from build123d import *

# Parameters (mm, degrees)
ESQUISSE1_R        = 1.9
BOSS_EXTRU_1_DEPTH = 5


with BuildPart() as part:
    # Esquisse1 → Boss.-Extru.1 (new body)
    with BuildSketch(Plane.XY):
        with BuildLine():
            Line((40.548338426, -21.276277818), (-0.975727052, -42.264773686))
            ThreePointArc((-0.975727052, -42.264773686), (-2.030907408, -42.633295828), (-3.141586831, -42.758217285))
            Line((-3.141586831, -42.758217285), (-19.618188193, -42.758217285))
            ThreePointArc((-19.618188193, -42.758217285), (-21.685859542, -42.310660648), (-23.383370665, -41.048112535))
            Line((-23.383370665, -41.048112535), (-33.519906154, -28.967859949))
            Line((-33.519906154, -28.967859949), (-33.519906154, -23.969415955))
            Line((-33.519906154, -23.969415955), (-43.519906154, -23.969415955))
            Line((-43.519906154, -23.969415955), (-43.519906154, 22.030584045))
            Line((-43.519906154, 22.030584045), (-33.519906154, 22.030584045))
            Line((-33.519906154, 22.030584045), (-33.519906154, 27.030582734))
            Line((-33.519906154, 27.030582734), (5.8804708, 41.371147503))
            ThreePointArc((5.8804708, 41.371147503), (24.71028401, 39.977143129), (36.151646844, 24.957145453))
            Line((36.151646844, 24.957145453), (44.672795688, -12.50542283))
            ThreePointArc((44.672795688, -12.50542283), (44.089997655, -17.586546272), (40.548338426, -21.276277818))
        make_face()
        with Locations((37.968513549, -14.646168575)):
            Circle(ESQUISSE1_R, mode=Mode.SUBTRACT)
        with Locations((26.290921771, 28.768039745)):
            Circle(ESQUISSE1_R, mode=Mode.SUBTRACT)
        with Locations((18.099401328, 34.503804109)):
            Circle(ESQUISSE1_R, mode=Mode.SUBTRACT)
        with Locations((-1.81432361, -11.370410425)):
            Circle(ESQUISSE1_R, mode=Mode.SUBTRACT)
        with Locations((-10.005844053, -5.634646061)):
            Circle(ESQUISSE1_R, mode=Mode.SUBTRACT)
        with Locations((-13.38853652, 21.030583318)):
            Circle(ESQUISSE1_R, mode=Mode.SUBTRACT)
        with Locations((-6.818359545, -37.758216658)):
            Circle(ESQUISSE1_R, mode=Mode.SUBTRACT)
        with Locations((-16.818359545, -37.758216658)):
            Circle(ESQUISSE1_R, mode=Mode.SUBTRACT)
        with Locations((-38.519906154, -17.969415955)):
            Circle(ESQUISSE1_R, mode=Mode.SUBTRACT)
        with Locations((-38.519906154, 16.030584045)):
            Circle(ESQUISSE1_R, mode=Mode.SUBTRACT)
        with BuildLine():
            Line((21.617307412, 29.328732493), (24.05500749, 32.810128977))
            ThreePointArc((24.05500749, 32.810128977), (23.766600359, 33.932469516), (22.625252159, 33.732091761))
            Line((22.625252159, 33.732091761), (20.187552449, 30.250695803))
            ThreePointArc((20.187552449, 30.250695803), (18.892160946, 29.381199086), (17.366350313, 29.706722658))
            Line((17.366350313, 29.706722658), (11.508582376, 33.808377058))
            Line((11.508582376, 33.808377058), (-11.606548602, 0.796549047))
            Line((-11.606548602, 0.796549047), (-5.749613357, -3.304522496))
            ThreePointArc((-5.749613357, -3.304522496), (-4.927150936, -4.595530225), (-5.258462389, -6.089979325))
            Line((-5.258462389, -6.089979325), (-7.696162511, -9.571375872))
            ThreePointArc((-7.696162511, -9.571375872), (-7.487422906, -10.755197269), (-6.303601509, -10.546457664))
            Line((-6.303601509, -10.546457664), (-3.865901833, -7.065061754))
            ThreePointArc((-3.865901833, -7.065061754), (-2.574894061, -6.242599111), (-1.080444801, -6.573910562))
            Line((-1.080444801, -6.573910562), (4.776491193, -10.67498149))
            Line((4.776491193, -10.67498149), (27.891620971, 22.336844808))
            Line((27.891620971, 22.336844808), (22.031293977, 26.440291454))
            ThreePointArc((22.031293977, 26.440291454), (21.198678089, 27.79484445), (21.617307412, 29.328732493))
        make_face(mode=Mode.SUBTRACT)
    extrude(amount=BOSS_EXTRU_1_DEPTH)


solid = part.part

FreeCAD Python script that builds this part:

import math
import FreeCAD as App
import Part
import Sketcher

V = App.Vector
Q = App.Units.Quantity

doc = App.newDocument("Part")
params = doc.addObject("Spreadsheet::Sheet", "Params")
for row, (alias, value) in enumerate([
    ("sketch1_radius", "8 mm"),
    ("sketch1_radius2", "23 mm"),
    ("sketch1_radius3", "5 mm"),
    ("sketch1_radius4", "5 mm"),
    ("sketch1_radius5", "2 mm"),
    ("pad1_length", "5 mm"),
], start=1):
    params.set(f"A{row}", alias)
    params.set(f"B{row}", "=" + value)
    params.setAlias(f"B{row}", alias)

body = doc.addObject("PartDesign::Body", "Body")

sketch1 = body.newObject("Sketcher::SketchObject", "Sketch")
sketch1.AttachmentSupport = (doc.getObject("XY_Plane"), [""])
sketch1.MapMode = "FlatFace"
sketch1.addGeometry([
    Part.LineSegment(V(-0.975727, -42.264774, 0), V(40.548338, -21.276278, 0)),
    Part.ArcOfCircle(Part.Circle(V(36.850493, -14.1822, 0), V(0, 0, 1), 8), math.radians(-62.468858), math.radians(12.098745)),
    Part.LineSegment(V(44.672796, -12.505423, 0), V(36.151647, 24.957145, 0)),
    Part.ArcOfCircle(Part.Circle(V(13.746934, 19.758217, 0), V(0, 0, 1), 23), math.radians(13.064062), math.radians(110)),
    Part.LineSegment(V(5.880471, 41.371148, 0), V(-33.519906, 27.030583, 0)),
    Part.LineSegment(V(-33.519906, 27.030583, 0), V(-33.519906, 22.030584, 0)),
    Part.LineSegment(V(-33.519906, 22.030584, 0), V(-43.519906, 22.030584, 0)),
    Part.LineSegment(V(-43.519906, 22.030584, 0), V(-43.519906, -23.969416, 0)),
    Part.LineSegment(V(-43.519906, -23.969416, 0), V(-33.519906, -23.969416, 0)),
    Part.LineSegment(V(-33.519906, -23.969416, 0), V(-33.519906, -28.96786, 0)),
    Part.LineSegment(V(-33.519906, -28.96786, 0), V(-23.383371, -41.048113, 0)),
    Part.ArcOfCircle(Part.Circle(V(-19.618189, -37.758217, 0), V(0, 0, 1), 5), math.radians(-138.854075), math.radians(-89.999985)),
    Part.LineSegment(V(-19.618188, -42.758217, 0), V(-3.141587, -42.758217, 0)),
    Part.ArcOfCircle(Part.Circle(V(-3.141587, -37.758217, 0), V(0, 0, 1), 5), math.radians(-89.999998), math.radians(-64.330968)),
    Part.Circle(V(37.968514, -14.646169, 0), V(0, 0, 1), 1.9),
    Part.Circle(V(-6.81836, -37.758217, 0), V(0, 0, 1), 1.9),
    Part.Circle(V(-16.81836, -37.758217, 0), V(0, 0, 1), 1.9),
    Part.Circle(V(-1.814324, -11.37041, 0), V(0, 0, 1), 1.9),
    Part.Circle(V(-10.005844, -5.634646, 0), V(0, 0, 1), 1.9),
    Part.Circle(V(-38.519906, -17.969416, 0), V(0, 0, 1), 1.9),
    Part.ArcOfCircle(Part.Circle(V(23.178447, 28.078595, 0), V(0, 0, 1), 2), math.radians(141.312781), math.radians(234.99999)),
    Part.LineSegment(V(22.031294, 26.440291, 0), V(27.891621, 22.336845, 0)),
    Part.LineSegment(V(27.891621, 22.336845, 0), V(4.776491, -10.674981, 0)),
    Part.LineSegment(V(4.776491, -10.674981, 0), V(-1.080445, -6.573911, 0)),
    Part.ArcOfCircle(Part.Circle(V(-2.227598, -8.212215, 0), V(0, 0, 1), 2), math.radians(54.999999), math.radians(145)),
    Part.LineSegment(V(-3.865902, -7.065062, 0), V(-6.303602, -10.546458, 0)),
    Part.ArcOfCircle(Part.Circle(V(-6.999882, -10.058917, 0), V(0, 0, 1), 0.850002), math.radians(144.999998), math.radians(324.999998)),
    Part.LineSegment(V(-7.696163, -9.571376, 0), V(-5.258462, -6.089979, 0)),
    Part.ArcOfCircle(Part.Circle(V(-6.896766, -4.942826, 0), V(0, 0, 1), 2), math.radians(-35), math.radians(54.999991)),
    Part.LineSegment(V(-5.749613, -3.304522, 0), V(-11.606549, 0.796549, 0)),
    Part.LineSegment(V(-11.606549, 0.796549, 0), V(11.508582, 33.808377, 0)),
    Part.LineSegment(V(11.508582, 33.808377, 0), V(17.36635, 29.706723, 0)),
    Part.ArcOfCircle(Part.Circle(V(18.513503, 31.345027, 0), V(0, 0, 1), 2), math.radians(-125.000007), math.radians(-33.172764)),
    Part.LineSegment(V(20.187552, 30.250696, 0), V(22.625252, 33.732092, 0)),
    Part.ArcOfCircle(Part.Circle(V(23.304223, 33.215426, 0), V(0, 0, 1), 0.853196), math.radians(-28.361579), math.radians(142.730532)),
    Part.LineSegment(V(24.055007, 32.810129, 0), V(21.617307, 29.328732, 0)),
    Part.Circle(V(26.290922, 28.76804, 0), V(0, 0, 1), 1.9),
    Part.Circle(V(18.099401, 34.503804, 0), V(0, 0, 1), 1.9),
    Part.Circle(V(-38.519906, 16.030584, 0), V(0, 0, 1), 1.9),
    Part.Circle(V(-13.388537, 21.030583, 0), V(0, 0, 1), 1.9),
], False)
sketch1.addConstraint([
    Sketcher.Constraint("Coincident", 0, 2, 1, 1),
    Sketcher.Constraint("Coincident", 1, 2, 2, 1),
    Sketcher.Constraint("Coincident", 2, 2, 3, 1),
    Sketcher.Constraint("Coincident", 3, 2, 4, 1),
    Sketcher.Constraint("Coincident", 4, 2, 5, 1),
    Sketcher.Constraint("Coincident", 5, 2, 6, 1),
    Sketcher.Constraint("Coincident", 6, 2, 7, 1),
    Sketcher.Constraint("Coincident", 7, 2, 8, 1),
    Sketcher.Constraint("Coincident", 8, 2, 9, 1),
    Sketcher.Constraint("Coincident", 9, 2, 10, 1),
    Sketcher.Constraint("Coincident", 10, 2, 11, 1),
    Sketcher.Constraint("Coincident", 11, 2, 12, 1),
    Sketcher.Constraint("Coincident", 12, 2, 13, 1),
    Sketcher.Constraint("Coincident", 13, 2, 0, 1),
    Sketcher.Constraint("Coincident", 20, 2, 21, 1),
    Sketcher.Constraint("Coincident", 21, 2, 22, 1),
    Sketcher.Constraint("Coincident", 22, 2, 23, 1),
    Sketcher.Constraint("Coincident", 23, 2, 24, 1),
    Sketcher.Constraint("Coincident", 24, 2, 25, 1),
    Sketcher.Constraint("Coincident", 25, 2, 26, 2),
    Sketcher.Constraint("Coincident", 26, 1, 27, 1),
    Sketcher.Constraint("Coincident", 27, 2, 28, 1),
    Sketcher.Constraint("Coincident", 28, 2, 29, 1),
    Sketcher.Constraint("Coincident", 29, 2, 30, 1),
    Sketcher.Constraint("Coincident", 30, 2, 31, 1),
    Sketcher.Constraint("Coincident", 31, 2, 32, 1),
    Sketcher.Constraint("Coincident", 32, 2, 33, 1),
    Sketcher.Constraint("Coincident", 33, 2, 34, 2),
    Sketcher.Constraint("Coincident", 34, 1, 35, 1),
    Sketcher.Constraint("Coincident", 35, 2, 20, 1),
    Sketcher.Constraint("Vertical", 5),
    Sketcher.Constraint("Horizontal", 6),
    Sketcher.Constraint("Vertical", 7),
    Sketcher.Constraint("Horizontal", 8),
    Sketcher.Constraint("Vertical", 9),
    Sketcher.Constraint("Horizontal", 12),
    Sketcher.Constraint("Radius", 1, Q("8 mm")),
    Sketcher.Constraint("Radius", 3, Q("23 mm")),
    Sketcher.Constraint("Radius", 11, Q("5 mm")),
    Sketcher.Constraint("Radius", 13, Q("5 mm")),
    Sketcher.Constraint("Radius", 20, Q("2 mm")),
    Sketcher.Constraint("Radius", 24, Q("2 mm")),
    Sketcher.Constraint("Radius", 28, Q("2 mm")),
    Sketcher.Constraint("Radius", 32, Q("2 mm")),
    Sketcher.Constraint("Diameter", 14, Q("3.8 mm")),
    Sketcher.Constraint("Diameter", 15, Q("3.8 mm")),
    Sketcher.Constraint("Diameter", 16, Q("3.8 mm")),
    Sketcher.Constraint("Diameter", 17, Q("3.8 mm")),
    Sketcher.Constraint("Diameter", 18, Q("3.8 mm")),
    Sketcher.Constraint("Diameter", 19, Q("3.8 mm")),
    Sketcher.Constraint("Diameter", 36, Q("3.8 mm")),
    Sketcher.Constraint("Diameter", 37, Q("3.8 mm")),
    Sketcher.Constraint("Diameter", 38, Q("3.8 mm")),
    Sketcher.Constraint("Diameter", 39, Q("3.8 mm")),
    Sketcher.Constraint("DistanceX", 6, 2, 6, 1, Q("10 mm")),
    Sketcher.Constraint("DistanceX", 8, 1, 8, 2, Q("10 mm")),
    Sketcher.Constraint("DistanceY", 5, 2, 5, 1, Q("4.999999 mm")),
    Sketcher.Constraint("DistanceY", 7, 2, 7, 1, Q("46 mm")),
    Sketcher.Constraint("Radius", 26, Q("0.850002 mm")),
    Sketcher.Constraint("DistanceX", 16, 3, 15, 3, Q("10 mm")),
    Sketcher.Constraint("DistanceY", 19, 3, 38, 3, Q("34 mm")),
    Sketcher.Constraint("DistanceY", 38, 3, 39, 3, Q("4.999999 mm")),
    Sketcher.Constraint("DistanceX", 38, 3, 4, 2, Q("5 mm")),
    Sketcher.Constraint("DistanceY", 38, 3, 4, 2, Q("10.999999 mm")),
    Sketcher.Constraint("DistanceX", 6, 2, 19, 3, Q("5 mm")),
    Sketcher.Constraint("DistanceY", 11, 2, 16, 3, Q("5.000001 mm")),
    Sketcher.Constraint("DistanceY", 11, 2, 15, 3, Q("5.000001 mm")),
    Sketcher.Constraint("Distance", 22, Q("40.299999 mm")),
    Sketcher.Constraint("Distance", 30, Q("40.300001 mm")),
    Sketcher.Constraint("Distance", 23, Q("7.149999 mm")),
    Sketcher.Constraint("Distance", 25, Q("4.25 mm")),
    Sketcher.Constraint("Distance", 27, Q("4.25 mm")),
    Sketcher.Constraint("Distance", 29, Q("7.149998 mm")),
    Sketcher.Constraint("Distance", 33, Q("4.25 mm")),
    Sketcher.Constraint("Distance", 35, Q("4.25 mm")),
    Sketcher.Constraint("DistanceX", 12, 1, 12, 2, Q("16.476601 mm")),
    Sketcher.Constraint("Radius", 34, Q("0.853196 mm")),
    Sketcher.Constraint("DistanceY", 1, 3, -1, 1, Q("14.1822 mm")),
    Sketcher.Constraint("DistanceX", -1, 1, 37, 3, Q("18.099401 mm")),
    Sketcher.Constraint("DistanceX", 24, 2, -1, 1, Q("3.865902 mm")),
    Sketcher.Constraint("DistanceX", 25, 2, -1, 1, Q("6.303602 mm")),
    Sketcher.Constraint("DistanceX", 13, 3, 14, 3, Q("41.110101 mm")),
    Sketcher.Constraint("DistanceY", 11, 3, 19, 3, Q("19.788801 mm")),
    Sketcher.Constraint("DistanceY", 15, 3, 26, 3, Q("27.6993 mm")),
    Sketcher.Constraint("DistanceX", 28, 3, 3, 3, Q("20.643701 mm")),
    Sketcher.Constraint("DistanceX", 24, 3, 32, 3, Q("20.741101 mm")),
    Sketcher.Constraint("DistanceY", 32, 3, 34, 3, Q("1.8704 mm")),
    Sketcher.Constraint("DistanceX", 34, 3, 36, 3, Q("2.986699 mm")),
    Sketcher.Constraint("DistanceY", 24, 3, 38, 3, Q("24.242799 mm")),
    Sketcher.Constraint("DistanceX", 20, 3, 2, 2, Q("12.9732 mm")),
    Sketcher.Constraint("DistanceX", 11, 2, 13, 3, Q("16.476601 mm")),
    Sketcher.Constraint("DistanceX", 36, 3, 21, 2, Q("1.600699 mm")),
    Sketcher.Constraint("DistanceY", 21, 2, 2, 2, Q("2.620301 mm")),
    Sketcher.Constraint("DistanceY", 17, 3, 23, 2, Q("4.7965 mm")),
    Sketcher.Constraint("DistanceX", 26, 1, 27, 2, Q("2.4377 mm")),
    Sketcher.Constraint("DistanceY", 20, 3, 32, 2, Q("2.1721 mm")),
    Sketcher.Constraint("DistanceX", 32, 2, 33, 2, Q("2.4377 mm")),
    Sketcher.Constraint("Distance", 2, Q("38.419448 mm")),
    Sketcher.Constraint("Distance", 10, Q("15.76965 mm")),
    Sketcher.Constraint("Distance", 21, Q("7.154139 mm")),
    Sketcher.Constraint("DistanceY", 9, 2, 9, 1, Q("4.998444 mm")),
    Sketcher.Constraint("DistanceX", 11, 3, -1, 1, Q("19.618189 mm")),
    Sketcher.Constraint("DistanceY", 14, 3, -1, 1, Q("14.646169 mm")),
    Sketcher.Constraint("DistanceX", 15, 3, -1, 1, Q("6.81836 mm")),
    Sketcher.Constraint("DistanceY", 17, 3, -1, 1, Q("11.37041 mm")),
    Sketcher.Constraint("DistanceX", -1, 1, 36, 3, Q("26.290922 mm")),
    Sketcher.Constraint("DistanceY", -1, 1, 36, 3, Q("28.76804 mm")),
    Sketcher.Constraint("DistanceX", -1, 1, 0, 2, Q("40.548338 mm")),
    Sketcher.Constraint("DistanceX", -1, 1, 3, 2, Q("5.880471 mm")),
    Sketcher.Constraint("DistanceY", 9, 2, -1, 1, Q("28.96786 mm")),
    Sketcher.Constraint("DistanceX", 10, 2, -1, 1, Q("23.383371 mm")),
    Sketcher.Constraint("DistanceX", 11, 2, -1, 1, Q("19.618188 mm")),
    Sketcher.Constraint("DistanceY", -1, 1, 20, 2, Q("26.440291 mm")),
    Sketcher.Constraint("DistanceX", -1, 1, 22, 2, Q("4.776491 mm")),
    Sketcher.Constraint("DistanceY", 22, 2, -1, 1, Q("10.674981 mm")),
    Sketcher.Constraint("DistanceY", 27, 2, -1, 1, Q("6.089979 mm")),
    Sketcher.Constraint("DistanceX", 29, 2, -1, 1, Q("11.606549 mm")),
    Sketcher.Constraint("DistanceY", -1, 1, 29, 2, Q("0.796549 mm")),
    Sketcher.Constraint("DistanceX", -1, 1, 31, 2, Q("17.36635 mm")),
    Sketcher.Constraint("DistanceY", -1, 1, 33, 2, Q("33.732092 mm")),
    Sketcher.Constraint("DistanceY", -1, 1, 34, 1, Q("32.810129 mm")),
    Sketcher.Constraint("DistanceX", 3, 3, 1, 3, Q("23.103559 mm")),
    Sketcher.Constraint("DistanceX", 13, 3, 1, 3, Q("39.99208 mm")),
    Sketcher.Constraint("DistanceX", 18, 3, 17, 3, Q("8.19152 mm")),
    Sketcher.Constraint("DistanceY", 15, 3, 18, 3, Q("32.123571 mm")),
    Sketcher.Constraint("DistanceX", 17, 3, 20, 3, Q("24.992771 mm")),
    Sketcher.Constraint("DistanceY", 20, 3, 37, 3, Q("6.425209 mm")),
    Sketcher.Constraint("DistanceX", 38, 3, 39, 3, Q("25.13137 mm")),
    Sketcher.Constraint("DistanceX", 12, 2, 13, 2, Q("2.16586 mm")),
    Sketcher.Constraint("DistanceX", 30, 2, 37, 3, Q("6.590819 mm")),
])
sketch1.setExpression("Constraints[36]", "Params.sketch1_radius")
sketch1.setExpression("Constraints[37]", "Params.sketch1_radius2")
sketch1.setExpression("Constraints[38]", "Params.sketch1_radius3")
sketch1.setExpression("Constraints[39]", "Params.sketch1_radius4")
sketch1.setExpression("Constraints[40]", "Params.sketch1_radius5")
pad1 = body.newObject("PartDesign::Pad", "Pad")
pad1.Profile = sketch1
pad1.setExpression("Length", "Params.pad1_length")

doc.recompute()
